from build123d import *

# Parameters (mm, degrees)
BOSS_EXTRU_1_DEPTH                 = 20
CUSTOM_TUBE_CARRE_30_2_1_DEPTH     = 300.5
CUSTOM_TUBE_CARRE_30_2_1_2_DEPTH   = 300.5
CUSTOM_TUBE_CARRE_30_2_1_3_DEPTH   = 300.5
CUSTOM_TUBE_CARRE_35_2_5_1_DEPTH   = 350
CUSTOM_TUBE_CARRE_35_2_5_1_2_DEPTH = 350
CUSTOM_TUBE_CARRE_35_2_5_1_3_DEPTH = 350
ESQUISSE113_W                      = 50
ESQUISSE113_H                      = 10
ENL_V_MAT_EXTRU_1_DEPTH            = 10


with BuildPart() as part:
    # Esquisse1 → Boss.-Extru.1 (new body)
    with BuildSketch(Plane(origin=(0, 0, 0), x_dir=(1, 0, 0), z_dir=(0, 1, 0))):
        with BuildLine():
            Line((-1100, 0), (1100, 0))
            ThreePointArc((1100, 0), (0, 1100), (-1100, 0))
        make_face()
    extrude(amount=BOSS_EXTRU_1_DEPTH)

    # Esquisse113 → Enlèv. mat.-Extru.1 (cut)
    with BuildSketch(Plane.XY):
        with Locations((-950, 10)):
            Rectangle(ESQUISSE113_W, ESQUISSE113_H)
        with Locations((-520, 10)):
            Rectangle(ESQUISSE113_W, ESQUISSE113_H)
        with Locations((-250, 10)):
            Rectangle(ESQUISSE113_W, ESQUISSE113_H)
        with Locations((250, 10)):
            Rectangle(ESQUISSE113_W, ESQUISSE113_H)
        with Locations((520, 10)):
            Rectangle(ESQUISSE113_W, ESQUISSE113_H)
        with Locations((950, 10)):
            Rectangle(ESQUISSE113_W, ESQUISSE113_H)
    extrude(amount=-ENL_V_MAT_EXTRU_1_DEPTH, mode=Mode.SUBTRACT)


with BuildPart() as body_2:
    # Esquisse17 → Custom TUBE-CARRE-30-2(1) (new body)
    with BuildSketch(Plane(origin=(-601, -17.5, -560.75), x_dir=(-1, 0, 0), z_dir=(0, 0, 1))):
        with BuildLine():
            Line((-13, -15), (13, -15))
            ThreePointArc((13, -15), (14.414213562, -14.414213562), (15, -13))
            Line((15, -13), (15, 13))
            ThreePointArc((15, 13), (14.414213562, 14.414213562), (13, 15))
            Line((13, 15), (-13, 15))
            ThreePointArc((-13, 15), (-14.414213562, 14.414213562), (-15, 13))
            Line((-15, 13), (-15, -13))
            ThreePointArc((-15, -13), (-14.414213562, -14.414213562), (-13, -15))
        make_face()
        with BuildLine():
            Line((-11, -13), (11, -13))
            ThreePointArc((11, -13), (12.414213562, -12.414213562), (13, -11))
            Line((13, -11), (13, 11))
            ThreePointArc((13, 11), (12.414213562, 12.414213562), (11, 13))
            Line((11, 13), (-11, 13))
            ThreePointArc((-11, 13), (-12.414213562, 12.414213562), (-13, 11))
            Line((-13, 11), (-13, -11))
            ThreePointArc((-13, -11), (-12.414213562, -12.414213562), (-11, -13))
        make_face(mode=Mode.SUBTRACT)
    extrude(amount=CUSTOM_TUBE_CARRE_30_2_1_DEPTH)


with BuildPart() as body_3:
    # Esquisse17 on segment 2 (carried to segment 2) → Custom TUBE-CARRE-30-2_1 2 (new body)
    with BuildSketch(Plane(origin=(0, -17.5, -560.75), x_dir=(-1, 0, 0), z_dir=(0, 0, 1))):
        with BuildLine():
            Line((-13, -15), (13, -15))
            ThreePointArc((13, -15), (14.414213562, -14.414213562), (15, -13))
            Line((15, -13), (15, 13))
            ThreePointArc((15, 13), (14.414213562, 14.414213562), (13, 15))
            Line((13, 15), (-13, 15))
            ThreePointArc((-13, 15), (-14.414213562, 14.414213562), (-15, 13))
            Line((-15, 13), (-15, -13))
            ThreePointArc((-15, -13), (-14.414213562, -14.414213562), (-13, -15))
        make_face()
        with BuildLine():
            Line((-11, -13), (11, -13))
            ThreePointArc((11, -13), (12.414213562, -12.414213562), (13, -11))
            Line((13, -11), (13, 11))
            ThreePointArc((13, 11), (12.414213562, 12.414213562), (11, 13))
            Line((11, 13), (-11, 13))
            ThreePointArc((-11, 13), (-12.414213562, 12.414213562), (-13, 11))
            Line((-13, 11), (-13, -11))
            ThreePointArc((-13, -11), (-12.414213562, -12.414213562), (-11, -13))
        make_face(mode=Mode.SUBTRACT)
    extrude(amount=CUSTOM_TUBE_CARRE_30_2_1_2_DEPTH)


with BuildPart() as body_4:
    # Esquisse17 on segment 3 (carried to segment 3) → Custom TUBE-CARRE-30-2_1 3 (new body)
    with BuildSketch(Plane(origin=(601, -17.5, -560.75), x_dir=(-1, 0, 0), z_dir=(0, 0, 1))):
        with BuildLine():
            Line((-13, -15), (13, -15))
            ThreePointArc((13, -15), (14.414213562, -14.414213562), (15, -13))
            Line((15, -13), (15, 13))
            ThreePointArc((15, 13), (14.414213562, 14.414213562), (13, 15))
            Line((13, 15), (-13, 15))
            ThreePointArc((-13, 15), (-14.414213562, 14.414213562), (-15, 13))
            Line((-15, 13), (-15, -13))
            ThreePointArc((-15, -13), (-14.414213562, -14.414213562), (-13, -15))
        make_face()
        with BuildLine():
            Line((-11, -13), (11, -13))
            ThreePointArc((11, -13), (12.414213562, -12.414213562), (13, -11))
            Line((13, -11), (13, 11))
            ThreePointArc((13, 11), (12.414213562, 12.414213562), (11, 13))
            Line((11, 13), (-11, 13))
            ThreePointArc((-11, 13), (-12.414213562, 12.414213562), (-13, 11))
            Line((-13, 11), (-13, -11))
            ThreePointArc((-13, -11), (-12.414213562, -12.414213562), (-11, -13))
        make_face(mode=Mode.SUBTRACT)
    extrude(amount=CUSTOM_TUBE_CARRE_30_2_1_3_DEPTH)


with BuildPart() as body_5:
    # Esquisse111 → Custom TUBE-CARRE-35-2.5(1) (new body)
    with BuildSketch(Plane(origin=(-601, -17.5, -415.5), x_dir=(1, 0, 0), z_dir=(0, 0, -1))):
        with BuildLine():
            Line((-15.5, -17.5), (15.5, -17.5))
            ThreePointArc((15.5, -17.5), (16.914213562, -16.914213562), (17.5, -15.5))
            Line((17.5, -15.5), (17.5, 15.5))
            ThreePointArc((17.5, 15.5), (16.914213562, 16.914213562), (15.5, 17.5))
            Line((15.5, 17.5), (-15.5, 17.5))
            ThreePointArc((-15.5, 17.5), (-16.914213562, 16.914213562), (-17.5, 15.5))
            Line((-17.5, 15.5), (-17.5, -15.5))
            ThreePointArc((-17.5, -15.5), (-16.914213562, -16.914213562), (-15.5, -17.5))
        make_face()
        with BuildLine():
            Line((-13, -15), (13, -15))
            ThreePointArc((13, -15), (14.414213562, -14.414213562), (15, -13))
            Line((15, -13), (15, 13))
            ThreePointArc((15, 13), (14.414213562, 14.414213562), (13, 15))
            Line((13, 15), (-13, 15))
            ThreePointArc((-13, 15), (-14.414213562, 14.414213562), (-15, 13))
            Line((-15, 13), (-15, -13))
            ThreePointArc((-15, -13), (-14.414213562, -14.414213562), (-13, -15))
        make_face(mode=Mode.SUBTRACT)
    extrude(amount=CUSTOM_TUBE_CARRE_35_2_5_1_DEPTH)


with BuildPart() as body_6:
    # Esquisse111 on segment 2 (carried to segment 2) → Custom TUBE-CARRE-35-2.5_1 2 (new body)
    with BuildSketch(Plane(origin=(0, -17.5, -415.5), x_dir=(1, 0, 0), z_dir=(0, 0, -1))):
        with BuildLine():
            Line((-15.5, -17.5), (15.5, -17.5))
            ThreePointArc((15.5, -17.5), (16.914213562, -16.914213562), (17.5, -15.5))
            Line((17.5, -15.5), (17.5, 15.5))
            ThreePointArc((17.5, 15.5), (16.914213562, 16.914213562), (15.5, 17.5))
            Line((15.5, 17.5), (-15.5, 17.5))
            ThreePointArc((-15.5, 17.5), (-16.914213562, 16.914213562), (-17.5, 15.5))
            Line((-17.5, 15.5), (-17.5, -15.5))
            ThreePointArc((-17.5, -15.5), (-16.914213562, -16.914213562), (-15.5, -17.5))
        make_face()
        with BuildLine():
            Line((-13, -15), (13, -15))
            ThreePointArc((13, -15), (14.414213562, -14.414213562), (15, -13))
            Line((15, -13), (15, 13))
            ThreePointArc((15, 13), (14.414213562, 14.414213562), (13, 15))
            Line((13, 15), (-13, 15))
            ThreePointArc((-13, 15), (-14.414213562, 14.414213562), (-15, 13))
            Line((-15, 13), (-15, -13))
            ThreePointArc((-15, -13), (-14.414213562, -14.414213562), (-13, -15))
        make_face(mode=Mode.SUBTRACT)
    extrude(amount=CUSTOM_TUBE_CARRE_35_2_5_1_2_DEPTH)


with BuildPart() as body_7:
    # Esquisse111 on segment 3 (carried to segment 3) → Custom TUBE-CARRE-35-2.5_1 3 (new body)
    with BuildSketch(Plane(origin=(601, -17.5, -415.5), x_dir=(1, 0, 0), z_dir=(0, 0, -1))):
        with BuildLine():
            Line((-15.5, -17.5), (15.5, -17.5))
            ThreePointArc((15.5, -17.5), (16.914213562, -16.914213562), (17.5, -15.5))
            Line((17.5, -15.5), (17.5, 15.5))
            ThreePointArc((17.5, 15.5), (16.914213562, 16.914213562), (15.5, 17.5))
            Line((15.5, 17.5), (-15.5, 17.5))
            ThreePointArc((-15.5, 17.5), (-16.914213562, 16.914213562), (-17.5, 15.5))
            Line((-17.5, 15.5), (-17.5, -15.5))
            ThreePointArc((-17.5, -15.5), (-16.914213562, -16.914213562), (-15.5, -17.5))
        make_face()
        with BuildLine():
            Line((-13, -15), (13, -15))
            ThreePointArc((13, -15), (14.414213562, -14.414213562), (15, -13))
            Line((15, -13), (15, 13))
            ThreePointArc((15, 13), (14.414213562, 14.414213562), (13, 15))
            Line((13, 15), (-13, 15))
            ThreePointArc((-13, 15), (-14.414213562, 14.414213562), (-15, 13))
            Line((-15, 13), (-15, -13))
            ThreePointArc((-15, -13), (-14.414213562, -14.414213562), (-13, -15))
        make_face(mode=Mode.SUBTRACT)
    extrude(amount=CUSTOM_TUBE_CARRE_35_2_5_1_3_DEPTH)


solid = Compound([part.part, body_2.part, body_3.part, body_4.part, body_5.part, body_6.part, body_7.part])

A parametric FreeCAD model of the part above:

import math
import FreeCAD as App
import Part
import Sketcher
from FreeCAD import Vector

doc = App.newDocument("Part")
body = doc.addObject("PartDesign::Body", "Body")

# Sketch on XZ plane
sketch1 = body.newObject("Sketcher::SketchObject", "Sketch")
sketch1.AttachmentSupport = (doc.getObject("XZ_Plane"), [""])
sketch1.MapMode = "FlatFace"
sketch1.addGeometry([
    Part.LineSegment(Vector(-1100, 0, 0), Vector(1100, 0, 0)),
    Part.ArcOfCircle(Part.Circle(Vector(0, 0, 0), Vector(0, 0, 1), 1100), math.radians(180), math.radians(360)),
], False)
sketch1.addConstraint([
    Sketcher.Constraint("Coincident", 0, 1, 1, 1),
    Sketcher.Constraint("Coincident", 1, 2, 0, 2),
    Sketcher.Constraint("Horizontal", 0),
    Sketcher.Constraint("Coincident", 1, 3, -1, 1),
    Sketcher.Constraint("PointOnObject", 0, 1, -1),
    Sketcher.Constraint("Radius", 1, 1100.0),
])
pad1 = body.newObject("PartDesign::Pad", "Pad")
pad1.Profile = sketch1
pad1.Length = 20
pad1.Reversed = True

# Sketch on XY plane
sketch2 = body.newObject("Sketcher::SketchObject", "Sketch001")
sketch2.AttachmentSupport = (doc.getObject("XY_Plane"), [""])
sketch2.MapMode = "FlatFace"
sketch2.addGeometry([
    Part.LineSegment(Vector(-975, 15, 0), Vector(-975, 5, 0)),  # 0
    Part.LineSegment(Vector(-975, 5, 0), Vector(-925, 5, 0)),  # 1
    Part.LineSegment(Vector(-925, 5, 0), Vector(-925, 15, 0)),  # 2
    Part.LineSegment(Vector(-925, 15, 0), Vector(-975, 15, 0)),  # 3
    Part.LineSegment(Vector(-545, 15, 0), Vector(-545, 5, 0)),  # 4
    Part.LineSegment(Vector(-545, 5, 0), Vector(-495, 5, 0)),  # 5
    Part.LineSegment(Vector(-495, 5, 0), Vector(-495, 15, 0)),  # 6
    Part.LineSegment(Vector(-495, 15, 0), Vector(-545, 15, 0)),  # 7
    Part.LineSegment(Vector(-275, 15, 0), Vector(-275, 5, 0)),  # 8
    Part.LineSegment(Vector(-275, 5, 0), Vector(-225, 5, 0)),  # 9
    Part.LineSegment(Vector(-225, 5, 0), Vector(-225, 15, 0)),  # 10
    Part.LineSegment(Vector(-225, 15, 0), Vector(-275, 15, 0)),  # 11
    Part.LineSegment(Vector(225, 15, 0), Vector(225, 5, 0)),  # 12
    Part.LineSegment(Vector(225, 5, 0), Vector(275, 5, 0)),  # 13
    Part.LineSegment(Vector(275, 5, 0), Vector(275, 15, 0)),  # 14
    Part.LineSegment(Vector(275, 15, 0), Vector(225, 15, 0)),  # 15
    Part.LineSegment(Vector(495, 15, 0), Vector(495, 5, 0)),  # 16
    Part.LineSegment(Vector(495, 5, 0), Vector(545, 5, 0)),  # 17
    Part.LineSegment(Vector(545, 5, 0), Vector(545, 15, 0)),  # 18
    Part.LineSegment(Vector(545, 15, 0), Vector(495, 15, 0)),  # 19
    Part.LineSegment(Vector(925, 15, 0), Vector(925, 5, 0)),  # 20
    Part.LineSegment(Vector(925, 5, 0), Vector(975, 5, 0)),  # 21
    Part.LineSegment(Vector(975, 5, 0), Vector(975, 15, 0)),  # 22
    Part.LineSegment(Vector(975, 15, 0), Vector(925, 15, 0)),  # 23
], False)
sketch2.addConstraint([
    Sketcher.Constraint("Coincident", 0, 2, 1, 1),
    Sketcher.Constraint("Coincident", 1, 2, 2, 1),
    Sketcher.Constraint("Coincident", 2, 2, 3, 1),
    Sketcher.Constraint("Coincident", 3, 2, 0, 1),
    Sketcher.Constraint("Coincident", 4, 2, 5, 1),
    Sketcher.Constraint("Coincident", 5, 2, 6, 1),
    Sketcher.Constraint("Coincident", 6, 2, 7, 1),
    Sketcher.Constraint("Coincident", 7, 2, 4, 1),
    Sketcher.Constraint("Coincident", 8, 2, 9, 1),
    Sketcher.Constraint("Coincident", 9, 2, 10, 1),
    Sketcher.Constraint("Coincident", 10, 2, 11, 1),
    Sketcher.Constraint("Coincident", 11, 2, 8, 1),
    Sketcher.Constraint("Coincident", 12, 2, 13, 1),
    Sketcher.Constraint("Coincident", 13, 2, 14, 1),
    Sketcher.Constraint("Coincident", 14, 2, 15, 1),
    Sketcher.Constraint("Coincident", 15, 2, 12, 1),
    Sketcher.Constraint("Coincident", 16, 2, 17, 1),
    Sketcher.Constraint("Coincident", 17, 2, 18, 1),
    Sketcher.Constraint("Coincident", 18, 2, 19, 1),
    Sketcher.Constraint("Coincident", 19, 2, 16, 1),
    Sketcher.Constraint("Coincident", 20, 2, 21, 1),
    Sketcher.Constraint("Coincident", 21, 2, 22, 1),
    Sketcher.Constraint("Coincident", 22, 2, 23, 1),
    Sketcher.Constraint("Coincident", 23, 2, 20, 1),
    Sketcher.Constraint("Vertical", 0),
    Sketcher.Constraint("Horizontal", 1),
    Sketcher.Constraint("Vertical", 2),
    Sketcher.Constraint("Horizontal", 3),
    Sketcher.Constraint("Vertical", 4),
    Sketcher.Constraint("Horizontal", 5),
    Sketcher.Constraint("Vertical", 6),
    Sketcher.Constraint("Horizontal", 7),
    Sketcher.Constraint("Vertical", 8),
    Sketcher.Constraint("Horizontal", 9),
    Sketcher.Constraint("Vertical", 10),
    Sketcher.Constraint("Horizontal", 11),
    Sketcher.Constraint("Vertical", 12),
    Sketcher.Constraint("Horizontal", 13),
    Sketcher.Constraint("Vertical", 14),
    Sketcher.Constraint("Horizontal", 15),
    Sketcher.Constraint("Vertical", 16),
    Sketcher.Constraint("Horizontal", 17),
    Sketcher.Constraint("Vertical", 18),
    Sketcher.Constraint("Horizontal", 19),
    Sketcher.Constraint("Vertical", 20),
    Sketcher.Constraint("Horizontal", 21),
    Sketcher.Constraint("Vertical", 22),
    Sketcher.Constraint("Horizontal", 23),
    Sketcher.Constraint("Symmetric", 9, 2, 12, 2, -2),
    Sketcher.Constraint("Symmetric", 11, 2, 14, 2, -2),
    Sketcher.Constraint("Symmetric", 5, 2, 16, 2, -2),
    Sketcher.Constraint("Symmetric", 7, 2, 18, 2, -2),
    Sketcher.Constraint("Symmetric", 1, 2, 20, 2, -2),
    Sketcher.Constraint("Symmetric", 3, 2, 22, 2, -2),
    Sketcher.Constraint("Horizontal", 1, 2, 4, 2),
    Sketcher.Constraint("Horizontal", 3, 2, 6, 2),
    Sketcher.Constraint("Horizontal", 5, 2, 8, 2),
    Sketcher.Constraint("Horizontal", 7, 2, 10, 2),
    Sketcher.Constraint("Equal", 3, 5),
    Sketcher.Constraint("Equal", 7, 9),
    Sketcher.Constraint("DistanceX", 1, 1, 1, 2, 50.0),
    Sketcher.Constraint("DistanceY", 0, 2, 0, 1, 10.0),
    Sketcher.Constraint("DistanceX", 0, 2, -1, 1, 975.0),
    Sketcher.Constraint("DistanceY", -1, 1, 0, 2, 5.0),
    Sketcher.Constraint("DistanceX", 4, 2, -1, 1, 545.0),
    Sketcher.Constraint("DistanceX", 8, 2, -1, 1, 275.0),
])
pocket1 = body.newObject("PartDesign::Pocket", "Pocket")
pocket1.Profile = sketch2
pocket1.Length = 10
body2 = doc.addObject("PartDesign::Body", "Body001")

# Sketch on XY plane
sketch3 = body2.newObject("Sketcher::SketchObject", "Sketch002")
sketch3.AttachmentSupport = (doc.getObject("XY_Plane001"), [""])
sketch3.MapMode = "FlatFace"
sketch3.AttachmentOffset = App.Placement(Vector(0, 0, -560.75), App.Rotation())
sketch3.addGeometry([
    Part.LineSegment(Vector(-588, -2.5, 0), Vector(-614, -2.5, 0)),  # 0
    Part.ArcOfCircle(Part.Circle(Vector(-614, -4.5, 0), Vector(0, 0, 1), 2), math.radians(90), math.radians(180)),  # 1
    Part.LineSegment(Vector(-616, -4.5, 0), Vector(-616, -30.5, 0)),  # 2
    Part.ArcOfCircle(Part.Circle(Vector(-614, -30.5, 0), Vector(0, 0, 1), 2), math.radians(-180), math.radians(-90)),  # 3
    Part.LineSegment(Vector(-614, -32.5, 0), Vector(-588, -32.5, 0)),  # 4
    Part.ArcOfCircle(Part.Circle(Vector(-588, -30.5, 0), Vector(0, 0, 1), 2), math.radians(-90), math.radians(0)),  # 5
    Part.LineSegment(Vector(-586, -30.5, 0), Vector(-586, -4.5, 0)),  # 6
    Part.ArcOfCircle(Part.Circle(Vector(-588, -4.5, 0), Vector(0, 0, 1), 2), math.radians(0), math.radians(90)),  # 7
    Part.LineSegment(Vector(-612, -4.5, 0), Vector(-590, -4.5, 0)),  # 8
    Part.ArcOfCircle(Part.Circle(Vector(-590, -6.5, 0), Vector(0, 0, 1), 2), math.radians(0), math.radians(90)),  # 9
    Part.LineSegment(Vector(-588, -6.5, 0), Vector(-588, -28.5, 0)),  # 10
    Part.ArcOfCircle(Part.Circle(Vector(-590, -28.5, 0), Vector(0, 0, 1), 2), math.radians(-90), math.radians(0)),  # 11
    Part.LineSegment(Vector(-590, -30.5, 0), Vector(-612, -30.5, 0)),  # 12
    Part.ArcOfCircle(Part.Circle(Vector(-612, -28.5, 0), Vector(0, 0, 1), 2), math.radians(-180), math.radians(-90)),  # 13
    Part.LineSegment(Vector(-614, -28.5, 0), Vector(-614, -6.5, 0)),  # 14
    Part.ArcOfCircle(Part.Circle(Vector(-612, -6.5, 0), Vector(0, 0, 1), 2), math.radians(90), math.radians(180)),  # 15
], False)
sketch3.addConstraint([
    Sketcher.Constraint("Tangent", 0, 2, 1, 1),
    Sketcher.Constraint("Tangent", 1, 2, 2, 1),
    Sketcher.Constraint("Tangent", 2, 2, 3, 1),
    Sketcher.Constraint("Tangent", 3, 2, 4, 1),
    Sketcher.Constraint("Tangent", 4, 2, 5, 1),
    Sketcher.Constraint("Tangent", 5, 2, 6, 1),
    Sketcher.Constraint("Tangent", 6, 2, 7, 1),
    Sketcher.Constraint("Tangent", 7, 2, 0, 1),
    Sketcher.Constraint("Tangent", 8, 2, 9, 2),
    Sketcher.Constraint("Tangent", 9, 1, 10, 1),
    Sketcher.Constraint("Tangent", 10, 2, 11, 2),
    Sketcher.Constraint("Tangent", 11, 1, 12, 1),
    Sketcher.Constraint("Tangent", 12, 2, 13, 2),
    Sketcher.Constraint("Tangent", 13, 1, 14, 1),
    Sketcher.Constraint("Tangent", 14, 2, 15, 2),
    Sketcher.Constraint("Tangent", 15, 1, 8, 1),
    Sketcher.Constraint("Horizontal", 0),
    Sketcher.Constraint("Vertical", 2),
    Sketcher.Constraint("Horizontal", 4),
    Sketcher.Constraint("Vertical", 6),
    Sketcher.Constraint("Horizontal", 8),
    Sketcher.Constraint("Vertical", 10),
    Sketcher.Constraint("Horizontal", 12),
    Sketcher.Constraint("Vertical", 14),
    Sketcher.Constraint("Equal", 1, 3),
    Sketcher.Constraint("Equal", 3, 5),
    Sketcher.Constraint("Equal", 5, 7),
    Sketcher.Constraint("Equal", 7, 9),
    Sketcher.Constraint("Equal", 9, 11),
    Sketcher.Constraint("Equal", 11, 13),
    Sketcher.Constraint("Equal", 13, 15),
    Sketcher.Constraint("Horizontal", 6, 2, 8, 2),
    Sketcher.Constraint("Horizontal", 5, 2, 11, 1),
    Sketcher.Constraint("Vertical", 7, 2, 9, 1),
    Sketcher.Constraint("Vertical", 3, 2, 13, 1),
    Sketcher.Constraint("Equal", 4, 2),
    Sketcher.Constraint("Radius", 1, 2.0),
    Sketcher.Constraint("DistanceX", 0, 2, 0, 1, 26.0),
    Sketcher.Constraint("DistanceX", 1, 3, -1, 1, 614.0),
    Sketcher.Constraint("DistanceY", 1, 3, -1, 1, 4.5),
])
pad2 = body2.newObject("PartDesign::Pad", "Pad001")
pad2.Profile = sketch3
pad2.Length = 300.5
body3 = doc.addObject("PartDesign::Body", "Body002")

# Sketch on XY plane
sketch4 = body3.newObject("Sketcher::SketchObject", "Sketch003")
sketch4.AttachmentSupport = (doc.getObject("XY_Plane002"), [""])
sketch4.MapMode = "FlatFace"
sketch4.AttachmentOffset = App.Placement(Vector(0, 0, -560.75), App.Rotation())
sketch4.addGeometry([
    Part.LineSegment(Vector(13, -2.5, 0), Vector(-13, -2.5, 0)),  # 0
    Part.ArcOfCircle(Part.Circle(Vector(-13, -4.5, 0), Vector(0, 0, 1), 2), math.radians(90), math.radians(180)),  # 1
    Part.LineSegment(Vector(-15, -4.5, 0), Vector(-15, -30.5, 0)),  # 2
    Part.ArcOfCircle(Part.Circle(Vector(-13, -30.5, 0), Vector(0, 0, 1), 2), math.radians(-180), math.radians(-90)),  # 3
    Part.LineSegment(Vector(-13, -32.5, 0), Vector(13, -32.5, 0)),  # 4
    Part.ArcOfCircle(Part.Circle(Vector(13, -30.5, 0), Vector(0, 0, 1), 2), math.radians(-90), math.radians(0)),  # 5
    Part.LineSegment(Vector(15, -30.5, 0), Vector(15, -4.5, 0)),  # 6
    Part.ArcOfCircle(Part.Circle(Vector(13, -4.5, 0), Vector(0, 0, 1), 2), math.radians(0), math.radians(90)),  # 7
    Part.LineSegment(Vector(-11, -4.5, 0), Vector(11, -4.5, 0)),  # 8
    Part.ArcOfCircle(Part.Circle(Vector(11, -6.5, 0), Vector(0, 0, 1), 2), math.radians(0), math.radians(90)),  # 9
    Part.LineSegment(Vector(13, -6.5, 0), Vector(13, -28.5, 0)),  # 10
    Part.ArcOfCircle(Part.Circle(Vector(11, -28.5, 0), Vector(0, 0, 1), 2), math.radians(-90), math.radians(0)),  # 11
    Part.LineSegment(Vector(11, -30.5, 0), Vector(-11, -30.5, 0)),  # 12
    Part.ArcOfCircle(Part.Circle(Vector(-11, -28.5, 0), Vector(0, 0, 1), 2), math.radians(-180), math.radians(-90)),  # 13
    Part.LineSegment(Vector(-13, -28.5, 0), Vector(-13, -6.5, 0)),  # 14
    Part.ArcOfCircle(Part.Circle(Vector(-11, -6.5, 0), Vector(0, 0, 1), 2), math.radians(90), math.radians(180)),  # 15
], False)
sketch4.addConstraint([
    Sketcher.Constraint("Tangent", 0, 2, 1, 1),
    Sketcher.Constraint("Tangent", 1, 2, 2, 1),
    Sketcher.Constraint("Tangent", 2, 2, 3, 1),
    Sketcher.Constraint("Tangent", 3, 2, 4, 1),
    Sketcher.Constraint("Tangent", 4, 2, 5, 1),
    Sketcher.Constraint("Tangent", 5, 2, 6, 1),
    Sketcher.Constraint("Tangent", 6, 2, 7, 1),
    Sketcher.Constraint("Tangent", 7, 2, 0, 1),
    Sketcher.Constraint("Tangent", 8, 2, 9, 2),
    Sketcher.Constraint("Tangent", 9, 1, 10, 1),
    Sketcher.Constraint("Tangent", 10, 2, 11, 2),
    Sketcher.Constraint("Tangent", 11, 1, 12, 1),
    Sketcher.Constraint("Tangent", 12, 2, 13, 2),
    Sketcher.Constraint("Tangent", 13, 1, 14, 1),
    Sketcher.Constraint("Tangent", 14, 2, 15, 2),
    Sketcher.Constraint("Tangent", 15, 1, 8, 1),
    Sketcher.Constraint("Horizontal", 0),
    Sketcher.Constraint("Vertical", 2),
    Sketcher.Constraint("Horizontal", 4),
    Sketcher.Constraint("Vertical", 6),
    Sketcher.Constraint("Horizontal", 8),
    Sketcher.Constraint("Vertical", 10),
    Sketcher.Constraint("Horizontal", 12),
    Sketcher.Constraint("Vertical", 14),
    Sketcher.Constraint("Equal", 1, 3),
    Sketcher.Constraint("Equal", 3, 5),
    Sketcher.Constraint("Equal", 5, 7),
    Sketcher.Constraint("Equal", 7, 9),
    Sketcher.Constraint("Equal", 9, 11),
    Sketcher.Constraint("Equal", 11, 13),
    Sketcher.Constraint("Equal", 13, 15),
    Sketcher.Constraint("Horizontal", 6, 2, 8, 2),
    Sketcher.Constraint("Horizontal", 5, 2, 11, 1),
    Sketcher.Constraint("Vertical", 7, 2, 9, 1),
    Sketcher.Constraint("Vertical", 3, 2, 13, 1),
    Sketcher.Constraint("Equal", 4, 2),
    Sketcher.Constraint("Radius", 1, 2.0),
    Sketcher.Constraint("DistanceX", 0, 2, 0, 1, 26.0),
    Sketcher.Constraint("DistanceX", 1, 3, -1, 1, 13.0),
    Sketcher.Constraint("DistanceY", 1, 3, -1, 1, 4.5),
])
pad3 = body3.newObject("PartDesign::Pad", "Pad002")
pad3.Profile = sketch4
pad3.Length = 300.5
body4 = doc.addObject("PartDesign::Body", "Body003")

# Sketch on XY plane
sketch5 = body4.newObject("Sketcher::SketchObject", "Sketch004")
sketch5.AttachmentSupport = (doc.getObject("XY_Plane003"), [""])
sketch5.MapMode = "FlatFace"
sketch5.AttachmentOffset = App.Placement(Vector(0, 0, -560.75), App.Rotation())
sketch5.addGeometry([
    Part.LineSegment(Vector(614, -2.5, 0), Vector(588, -2.5, 0)),  # 0
    Part.ArcOfCircle(Part.Circle(Vector(588, -4.5, 0), Vector(0, 0, 1), 2), math.radians(90), math.radians(180)),  # 1
    Part.LineSegment(Vector(586, -4.5, 0), Vector(586, -30.5, 0)),  # 2
    Part.ArcOfCircle(Part.Circle(Vector(588, -30.5, 0), Vector(0, 0, 1), 2), math.radians(-180), math.radians(-90)),  # 3
    Part.LineSegment(Vector(588, -32.5, 0), Vector(614, -32.5, 0)),  # 4
    Part.ArcOfCircle(Part.Circle(Vector(614, -30.5, 0), Vector(0, 0, 1), 2), math.radians(-90), math.radians(0)),  # 5
    Part.LineSegment(Vector(616, -30.5, 0), Vector(616, -4.5, 0)),  # 6
    Part.ArcOfCircle(Part.Circle(Vector(614, -4.5, 0), Vector(0, 0, 1), 2), math.radians(0), math.radians(90)),  # 7
    Part.LineSegment(Vector(590, -4.5, 0), Vector(612, -4.5, 0)),  # 8
    Part.ArcOfCircle(Part.Circle(Vector(612, -6.5, 0), Vector(0, 0, 1), 2), math.radians(0), math.radians(90)),  # 9
    Part.LineSegment(Vector(614, -6.5, 0), Vector(614, -28.5, 0)),  # 10
    Part.ArcOfCircle(Part.Circle(Vector(612, -28.5, 0), Vector(0, 0, 1), 2), math.radians(-90), math.radians(0)),  # 11
    Part.LineSegment(Vector(612, -30.5, 0), Vector(590, -30.5, 0)),  # 12
    Part.ArcOfCircle(Part.Circle(Vector(590, -28.5, 0), Vector(0, 0, 1), 2), math.radians(-180), math.radians(-90)),  # 13
    Part.LineSegment(Vector(588, -28.5, 0), Vector(588, -6.5, 0)),  # 14
    Part.ArcOfCircle(Part.Circle(Vector(590, -6.5, 0), Vector(0, 0, 1), 2), math.radians(90), math.radians(180)),  # 15
], False)
sketch5.addConstraint([
    Sketcher.Constraint("Tangent", 0, 2, 1, 1),
    Sketcher.Constraint("Tangent", 1, 2, 2, 1),
    Sketcher.Constraint("Tangent", 2, 2, 3, 1),
    Sketcher.Constraint("Tangent", 3, 2, 4, 1),
    Sketcher.Constraint("Tangent", 4, 2, 5, 1),
    Sketcher.Constraint("Tangent", 5, 2, 6, 1),
    Sketcher.Constraint("Tangent", 6, 2, 7, 1),
    Sketcher.Constraint("Tangent", 7, 2, 0, 1),
    Sketcher.Constraint("Tangent", 8, 2, 9, 2),
    Sketcher.Constraint("Tangent", 9, 1, 10, 1),
    Sketcher.Constraint("Tangent", 10, 2, 11, 2),
    Sketcher.Constraint("Tangent", 11, 1, 12, 1),
    Sketcher.Constraint("Tangent", 12, 2, 13, 2),
    Sketcher.Constraint("Tangent", 13, 1, 14, 1),
    Sketcher.Constraint("Tangent", 14, 2, 15, 2),
    Sketcher.Constraint("Tangent", 15, 1, 8, 1),
    Sketcher.Constraint("Horizontal", 0),
    Sketcher.Constraint("Vertical", 2),
    Sketcher.Constraint("Horizontal", 4),
    Sketcher.Constraint("Vertical", 6),
    Sketcher.Constraint("Horizontal", 8),
    Sketcher.Constraint("Vertical", 10),
    Sketcher.Constraint("Horizontal", 12),
    Sketcher.Constraint("Vertical", 14),
    Sketcher.Constraint("Equal", 1, 3),
    Sketcher.Constraint("Equal", 3, 5),
    Sketcher.Constraint("Equal", 5, 7),
    Sketcher.Constraint("Equal", 7, 9),
    Sketcher.Constraint("Equal", 9, 11),
    Sketcher.Constraint("Equal", 11, 13),
    Sketcher.Constraint("Equal", 13, 15),
    Sketcher.Constraint("Horizontal", 6, 2, 8, 2),
    Sketcher.Constraint("Horizontal", 5, 2, 11, 1),
    Sketcher.Constraint("Vertical", 7, 2, 9, 1),
    Sketcher.Constraint("Vertical", 3, 2, 13, 1),
    Sketcher.Constraint("Equal", 4, 2),
    Sketcher.Constraint("Radius", 1, 2.0),
    Sketcher.Constraint("DistanceX", 0, 2, 0, 1, 26.0),
    Sketcher.Constraint("DistanceX", -1, 1, 1, 3, 588.0),
    Sketcher.Constraint("DistanceY", 1, 3, -1, 1, 4.5),
])
pad4 = body4.newObject("PartDesign::Pad", "Pad003")
pad4.Profile = sketch5
pad4.Length = 300.5
body5 = doc.addObject("PartDesign::Body", "Body004")

# Sketch on XY plane
sketch6 = body5.newObject("Sketcher::SketchObject", "Sketch005")
sketch6.AttachmentSupport = (doc.getObject("XY_Plane004"), [""])
sketch6.MapMode = "FlatFace"
sketch6.AttachmentOffset = App.Placement(Vector(0, 0, -415.5), App.Rotation())
sketch6.addGeometry([
    Part.LineSegment(Vector(-616.5, 0, 0), Vector(-585.5, 0, 0)),  # 0
    Part.ArcOfCircle(Part.Circle(Vector(-585.5, -2, 0), Vector(0, 0, 1), 2), math.radians(0), math.radians(90)),  # 1
    Part.LineSegment(Vector(-583.5, -2, 0), Vector(-583.5, -33, 0)),  # 2
    Part.ArcOfCircle(Part.Circle(Vector(-585.5, -33, 0), Vector(0, 0, 1), 2), math.radians(-90), math.radians(0)),  # 3
    Part.LineSegment(Vector(-585.5, -35, 0), Vector(-616.5, -35, 0)),  # 4
    Part.ArcOfCircle(Part.Circle(Vector(-616.5, -33, 0), Vector(0, 0, 1), 2), math.radians(-180), math.radians(-90)),  # 5
    Part.LineSegment(Vector(-618.5, -33, 0), Vector(-618.5, -2, 0)),  # 6
    Part.ArcOfCircle(Part.Circle(Vector(-616.5, -2, 0), Vector(0, 0, 1), 2), math.radians(90), math.radians(180)),  # 7
    Part.LineSegment(Vector(-588, -2.5, 0), Vector(-614, -2.5, 0)),  # 8
    Part.ArcOfCircle(Part.Circle(Vector(-614, -4.5, 0), Vector(0, 0, 1), 2), math.radians(90), math.radians(180)),  # 9
    Part.LineSegment(Vector(-616, -4.5, 0), Vector(-616, -30.5, 0)),  # 10
    Part.ArcOfCircle(Part.Circle(Vector(-614, -30.5, 0), Vector(0, 0, 1), 2), math.radians(-180), math.radians(-90)),  # 11
    Part.LineSegment(Vector(-614, -32.5, 0), Vector(-588, -32.5, 0)),  # 12
    Part.ArcOfCircle(Part.Circle(Vector(-588, -30.5, 0), Vector(0, 0, 1), 2), math.radians(-90), math.radians(0)),  # 13
    Part.LineSegment(Vector(-586, -30.5, 0), Vector(-586, -4.5, 0)),  # 14
    Part.ArcOfCircle(Part.Circle(Vector(-588, -4.5, 0), Vector(0, 0, 1), 2), math.radians(0), math.radians(90)),  # 15
], False)
sketch6.addConstraint([
    Sketcher.Constraint("Tangent", 0, 2, 1, 2),
    Sketcher.Constraint("Tangent", 1, 1, 2, 1),
    Sketcher.Constraint("Tangent", 2, 2, 3, 2),
    Sketcher.Constraint("Tangent", 3, 1, 4, 1),
    Sketcher.Constraint("Tangent", 4, 2, 5, 2),
    Sketcher.Constraint("Tangent", 5, 1, 6, 1),
    Sketcher.Constraint("Tangent", 6, 2, 7, 2),
    Sketcher.Constraint("Tangent", 7, 1, 0, 1),
    Sketcher.Constraint("Tangent", 8, 2, 9, 1),
    Sketcher.Constraint("Tangent", 9, 2, 10, 1),
    Sketcher.Constraint("Tangent", 10, 2, 11, 1),
    Sketcher.Constraint("Tangent", 11, 2, 12, 1),
    Sketcher.Constraint("Tangent", 12, 2, 13, 1),
    Sketcher.Constraint("Tangent", 13, 2, 14, 1),
    Sketcher.Constraint("Tangent", 14, 2, 15, 1),
    Sketcher.Constraint("Tangent", 15, 2, 8, 1),
    Sketcher.Constraint("Horizontal", 0),
    Sketcher.Constraint("Vertical", 2),
    Sketcher.Constraint("Horizontal", 4),
    Sketcher.Constraint("Vertical", 6),
    Sketcher.Constraint("Horizontal", 8),
    Sketcher.Constraint("Vertical", 10),
    Sketcher.Constraint("Horizontal", 12),
    Sketcher.Constraint("Vertical", 14),
    Sketcher.Constraint("Equal", 1, 3),
    Sketcher.Constraint("Equal", 3, 5),
    Sketcher.Constraint("Equal", 5, 7),
    Sketcher.Constraint("Equal", 7, 9),
    Sketcher.Constraint("Equal", 9, 11),
    Sketcher.Constraint("Equal", 11, 13),
    Sketcher.Constraint("Equal", 13, 15),
    Sketcher.Constraint("PointOnObject", 0, 2, -1),
    Sketcher.Constraint("Equal", 4, 2),
    Sketcher.Constraint("Equal", 12, 10),
    Sketcher.Constraint("Radius", 1, 2.0),
    Sketcher.Constraint("DistanceX", 0, 1, 0, 2, 31.0),
    Sketcher.Constraint("DistanceX", 8, 2, 8, 1, 26.0),
    Sketcher.Constraint("DistanceX", 9, 3, -1, 1, 614.0),
    Sketcher.Constraint("DistanceX", 1, 3, -1, 1, 585.5),
    Sketcher.Constraint("DistanceY", 9, 3, -1, 1, 4.5),
])
pad5 = body5.newObject("PartDesign::Pad", "Pad004")
pad5.Profile = sketch6
pad5.Length = 350
pad5.Reversed = True
body6 = doc.addObject("PartDesign::Body", "Body005")

# Sketch on XY plane
sketch7 = body6.newObject("Sketcher::SketchObject", "Sketch006")
sketch7.AttachmentSupport = (doc.getObject("XY_Plane005"), [""])
sketch7.MapMode = "FlatFace"
sketch7.AttachmentOffset = App.Placement(Vector(0, 0, -415.5), App.Rotation())
sketch7.addGeometry([
    Part.LineSegment(Vector(-15.5, 0, 0), Vector(15.5, 0, 0)),  # 0
    Part.ArcOfCircle(Part.Circle(Vector(15.5, -2, 0), Vector(0, 0, 1), 2), math.radians(0), math.radians(90)),  # 1
    Part.LineSegment(Vector(17.5, -2, 0), Vector(17.5, -33, 0)),  # 2
    Part.ArcOfCircle(Part.Circle(Vector(15.5, -33, 0), Vector(0, 0, 1), 2), math.radians(-90), math.radians(0)),  # 3
    Part.LineSegment(Vector(15.5, -35, 0), Vector(-15.5, -35, 0)),  # 4
    Part.ArcOfCircle(Part.Circle(Vector(-15.5, -33, 0), Vector(0, 0, 1), 2), math.radians(-180), math.radians(-90)),  # 5
    Part.LineSegment(Vector(-17.5, -33, 0), Vector(-17.5, -2, 0)),  # 6
    Part.ArcOfCircle(Part.Circle(Vector(-15.5, -2, 0), Vector(0, 0, 1), 2), math.radians(90), math.radians(180)),  # 7
    Part.LineSegment(Vector(13, -2.5, 0), Vector(-13, -2.5, 0)),  # 8
    Part.ArcOfCircle(Part.Circle(Vector(-13, -4.5, 0), Vector(0, 0, 1), 2), math.radians(90), math.radians(180)),  # 9
    Part.LineSegment(Vector(-15, -4.5, 0), Vector(-15, -30.5, 0)),  # 10
    Part.ArcOfCircle(Part.Circle(Vector(-13, -30.5, 0), Vector(0, 0, 1), 2), math.radians(-180), math.radians(-90)),  # 11
    Part.LineSegment(Vector(-13, -32.5, 0), Vector(13, -32.5, 0)),  # 12
    Part.ArcOfCircle(Part.Circle(Vector(13, -30.5, 0), Vector(0, 0, 1), 2), math.radians(-90), math.radians(0)),  # 13
    Part.LineSegment(Vector(15, -30.5, 0), Vector(15, -4.5, 0)),  # 14
    Part.ArcOfCircle(Part.Circle(Vector(13, -4.5, 0), Vector(0, 0, 1), 2), math.radians(0), math.radians(90)),  # 15
], False)
sketch7.addConstraint([
    Sketcher.Constraint("Tangent", 0, 2, 1, 2),
    Sketcher.Constraint("Tangent", 1, 1, 2, 1),
    Sketcher.Constraint("Tangent", 2, 2, 3, 2),
    Sketcher.Constraint("Tangent", 3, 1, 4, 1),
    Sketcher.Constraint("Tangent", 4, 2, 5, 2),
    Sketcher.Constraint("Tangent", 5, 1, 6, 1),
    Sketcher.Constraint("Tangent", 6, 2, 7, 2),
    Sketcher.Constraint("Tangent", 7, 1, 0, 1),
    Sketcher.Constraint("Tangent", 8, 2, 9, 1),
    Sketcher.Constraint("Tangent", 9, 2, 10, 1),
    Sketcher.Constraint("Tangent", 10, 2, 11, 1),
    Sketcher.Constraint("Tangent", 11, 2, 12, 1),
    Sketcher.Constraint("Tangent", 12, 2, 13, 1),
    Sketcher.Constraint("Tangent", 13, 2, 14, 1),
    Sketcher.Constraint("Tangent", 14, 2, 15, 1),
    Sketcher.Constraint("Tangent", 15, 2, 8, 1),
    Sketcher.Constraint("Horizontal", 0),
    Sketcher.Constraint("Vertical", 2),
    Sketcher.Constraint("Horizontal", 4),
    Sketcher.Constraint("Vertical", 6),
    Sketcher.Constraint("Horizontal", 8),
    Sketcher.Constraint("Vertical", 10),
    Sketcher.Constraint("Horizontal", 12),
    Sketcher.Constraint("Vertical", 14),
    Sketcher.Constraint("Equal", 1, 3),
    Sketcher.Constraint("Equal", 3, 5),
    Sketcher.Constraint("Equal", 5, 7),
    Sketcher.Constraint("Equal", 7, 9),
    Sketcher.Constraint("Equal", 9, 11),
    Sketcher.Constraint("Equal", 11, 13),
    Sketcher.Constraint("Equal", 13, 15),
    Sketcher.Constraint("Symmetric", 0, 2, 7, 1, -1, 1),
    Sketcher.Constraint("Equal", 4, 2),
    Sketcher.Constraint("Equal", 12, 10),
    Sketcher.Constraint("Radius", 1, 2.0),
    Sketcher.Constraint("DistanceX", 0, 1, 0, 2, 31.0),
    Sketcher.Constraint("DistanceX", 8, 2, 8, 1, 26.0),
    Sketcher.Constraint("DistanceX", 9, 3, -1, 1, 13.0),
    Sketcher.Constraint("DistanceY", 9, 3, -1, 1, 4.5),
])
pad6 = body6.newObject("PartDesign::Pad", "Pad005")
pad6.Profile = sketch7
pad6.Length = 350
pad6.Reversed = True
body7 = doc.addObject("PartDesign::Body", "Body006")

# Sketch on XY plane
sketch8 = body7.newObject("Sketcher::SketchObject", "Sketch007")
sketch8.AttachmentSupport = (doc.getObject("XY_Plane006"), [""])
sketch8.MapMode = "FlatFace"
sketch8.AttachmentOffset = App.Placement(Vector(0, 0, -415.5), App.Rotation())
sketch8.addGeometry([
    Part.LineSegment(Vector(585.5, 0, 0), Vector(616.5, 0, 0)),  # 0
    Part.ArcOfCircle(Part.Circle(Vector(616.5, -2, 0), Vector(0, 0, 1), 2), math.radians(0), math.radians(90)),  # 1
    Part.LineSegment(Vector(618.5, -2, 0), Vector(618.5, -33, 0)),  # 2
    Part.ArcOfCircle(Part.Circle(Vector(616.5, -33, 0), Vector(0, 0, 1), 2), math.radians(-90), math.radians(0)),  # 3
    Part.LineSegment(Vector(616.5, -35, 0), Vector(585.5, -35, 0)),  # 4
    Part.ArcOfCircle(Part.Circle(Vector(585.5, -33, 0), Vector(0, 0, 1), 2), math.radians(-180), math.radians(-90)),  # 5
    Part.LineSegment(Vector(583.5, -33, 0), Vector(583.5, -2, 0)),  # 6
    Part.ArcOfCircle(Part.Circle(Vector(585.5, -2, 0), Vector(0, 0, 1), 2), math.radians(90), math.radians(180)),  # 7
    Part.LineSegment(Vector(614, -2.5, 0), Vector(588, -2.5, 0)),  # 8
    Part.ArcOfCircle(Part.Circle(Vector(588, -4.5, 0), Vector(0, 0, 1), 2), math.radians(90), math.radians(180)),  # 9
    Part.LineSegment(Vector(586, -4.5, 0), Vector(586, -30.5, 0)),  # 10
    Part.ArcOfCircle(Part.Circle(Vector(588, -30.5, 0), Vector(0, 0, 1), 2), math.radians(-180), math.radians(-90)),  # 11
    Part.LineSegment(Vector(588, -32.5, 0), Vector(614, -32.5, 0)),  # 12
    Part.ArcOfCircle(Part.Circle(Vector(614, -30.5, 0), Vector(0, 0, 1), 2), math.radians(-90), math.radians(0)),  # 13
    Part.LineSegment(Vector(616, -30.5, 0), Vector(616, -4.5, 0)),  # 14
    Part.ArcOfCircle(Part.Circle(Vector(614, -4.5, 0), Vector(0, 0, 1), 2), math.radians(0), math.radians(90)),  # 15
], False)
sketch8.addConstraint([
    Sketcher.Constraint("Tangent", 0, 2, 1, 2),
    Sketcher.Constraint("Tangent", 1, 1, 2, 1),
    Sketcher.Constraint("Tangent", 2, 2, 3, 2),
    Sketcher.Constraint("Tangent", 3, 1, 4, 1),
    Sketcher.Constraint("Tangent", 4, 2, 5, 2),
    Sketcher.Constraint("Tangent", 5, 1, 6, 1),
    Sketcher.Constraint("Tangent", 6, 2, 7, 2),
    Sketcher.Constraint("Tangent", 7, 1, 0, 1),
    Sketcher.Constraint("Tangent", 8, 2, 9, 1),
    Sketcher.Constraint("Tangent", 9, 2, 10, 1),
    Sketcher.Constraint("Tangent", 10, 2, 11, 1),
    Sketcher.Constraint("Tangent", 11, 2, 12, 1),
    Sketcher.Constraint("Tangent", 12, 2, 13, 1),
    Sketcher.Constraint("Tangent", 13, 2, 14, 1),
    Sketcher.Constraint("Tangent", 14, 2, 15, 1),
    Sketcher.Constraint("Tangent", 15, 2, 8, 1),
    Sketcher.Constraint("Horizontal", 0),
    Sketcher.Constraint("Vertical", 2),
    Sketcher.Constraint("Horizontal", 4),
    Sketcher.Constraint("Vertical", 6),
    Sketcher.Constraint("Horizontal", 8),
    Sketcher.Constraint("Vertical", 10),
    Sketcher.Constraint("Horizontal", 12),
    Sketcher.Constraint("Vertical", 14),
    Sketcher.Constraint("Equal", 1, 3),
    Sketcher.Constraint("Equal", 3, 5),
    Sketcher.Constraint("Equal", 5, 7),
    Sketcher.Constraint("Equal", 7, 9),
    Sketcher.Constraint("Equal", 9, 11),
    Sketcher.Constraint("Equal", 11, 13),
    Sketcher.Constraint("Equal", 13, 15),
    Sketcher.Constraint("PointOnObject", 0, 2, -1),
    Sketcher.Constraint("Equal", 4, 2),
    Sketcher.Constraint("Equal", 12, 10),
    Sketcher.Constraint("Radius", 1, 2.0),
    Sketcher.Constraint("DistanceX", 0, 1, 0, 2, 31.0),
    Sketcher.Constraint("DistanceX", 8, 2, 8, 1, 26.0),
    Sketcher.Constraint("DistanceX", -1, 1, 9, 3, 588.0),
    Sketcher.Constraint("DistanceX", -1, 1, 1, 3, 616.5),
    Sketcher.Constraint("DistanceY", 9, 3, -1, 1, 4.5),
])
pad7 = body7.newObject("PartDesign::Pad", "Pad006")
pad7.Profile = sketch8
pad7.Length = 350
pad7.Reversed = True

doc.recompute()
